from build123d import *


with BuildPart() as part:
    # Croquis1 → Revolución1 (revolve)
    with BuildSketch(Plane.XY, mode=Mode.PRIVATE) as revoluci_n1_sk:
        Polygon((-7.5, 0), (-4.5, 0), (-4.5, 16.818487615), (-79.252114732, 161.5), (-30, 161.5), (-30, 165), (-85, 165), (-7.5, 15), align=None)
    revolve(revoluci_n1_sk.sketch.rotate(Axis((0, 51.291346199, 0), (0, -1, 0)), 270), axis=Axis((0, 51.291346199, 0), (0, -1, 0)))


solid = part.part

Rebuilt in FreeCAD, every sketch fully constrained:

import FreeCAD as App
import Part
import Sketcher
from FreeCAD import Vector
Q = App.Units.Quantity


def add_polygon(sketch, points):
    """Adds a closed chain of lines whose ends are joined by coincident constraints."""
    first, n = sketch.GeometryCount, len(points)
    for a, b in zip(points, points[1:] + points[:1]):
        sketch.addGeometry(Part.LineSegment(App.Vector(*a, 0), App.Vector(*b, 0)), False)
    for i in range(n):
        sketch.addConstraint(Sketcher.Constraint("Coincident", first + i, 2, first + (i + 1) % n, 1))

doc = App.newDocument("Part")
body = doc.addObject("PartDesign::Body", "Body")

# Sketch on XY plane
sketch1 = body.newObject("Sketcher::SketchObject", "Sketch")
sketch1.AttachmentSupport = (doc.getObject("XY_Plane"), [""])
sketch1.MapMode = "FlatFace"
add_polygon(sketch1, [(-7.5, 0), (-4.5, 0), (-4.5, 16.8), (-79.3, 161.5), (-30, 161.5), (-30, 165), (-85, 165), (-7.5, 15)])  # lines 0-7
sketch1.addConstraint([
    Sketcher.Constraint("Horizontal", 0),
    Sketcher.Constraint("Vertical", 1),
    Sketcher.Constraint("Horizontal", 3),
    Sketcher.Constraint("Vertical", 4),
    Sketcher.Constraint("Horizontal", 5),
    Sketcher.Constraint("Vertical", 7),
    Sketcher.Constraint("PointOnObject", 0, 2, -1),
    Sketcher.Constraint("Parallel", 2, 6),
    Sketcher.Constraint("DistanceX", 0, 1, 0, 2, Q("3 mm")),
    Sketcher.Constraint("DistanceX", 5, 2, 5, 1, Q("55 mm")),
    Sketcher.Constraint("DistanceY", 7, 2, 7, 1, Q("15 mm")),
    Sketcher.Constraint("DistanceY", 4, 1, 4, 2, Q("3.5 mm")),
    Sketcher.Constraint("DistanceX", 3, 2, -1, 1, Q("30 mm")),
    Sketcher.Constraint("DistanceY", -1, 1, 4, 2, Q("165 mm")),
    Sketcher.Constraint("DistanceX", 0, 2, -1, 1, Q("4.5 mm")),
    Sketcher.Constraint("DistanceX", 3, 1, 3, 2, Q("49.252115 mm")),
])
revolution = body.newObject("PartDesign::Revolution", "Revolution")
revolution.Profile = sketch1
revolution.ReferenceAxis = (sketch1, ["V_Axis"])
revolution.Angle = 360

doc.recompute()
